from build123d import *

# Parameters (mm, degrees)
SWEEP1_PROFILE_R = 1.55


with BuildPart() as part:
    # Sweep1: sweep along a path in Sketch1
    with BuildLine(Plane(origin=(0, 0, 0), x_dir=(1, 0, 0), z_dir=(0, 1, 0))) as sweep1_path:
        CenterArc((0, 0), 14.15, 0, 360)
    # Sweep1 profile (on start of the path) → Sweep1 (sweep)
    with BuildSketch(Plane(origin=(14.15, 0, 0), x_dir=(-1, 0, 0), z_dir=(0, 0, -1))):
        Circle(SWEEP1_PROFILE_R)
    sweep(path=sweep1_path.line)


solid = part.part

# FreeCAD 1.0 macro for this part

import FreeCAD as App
import Part
import Sketcher
Q = App.Units.Quantity

doc = App.newDocument("Part")
body = doc.addObject("PartDesign::Body", "Body")

sketch1 = doc.addObject("Sketcher::SketchObject", "Sketch")
body.addObject(sketch1)
sketch1.AttachmentSupport = (doc.XY_Plane, [""])
sketch1.MapMode = "FlatFace"
sketch1.addGeometry(Part.Circle(App.Vector(14.2, 0, 0), App.Vector(0, 0, 1), 1.6), False)
sketch1.addConstraint([
    Sketcher.Constraint("PointOnObject", 0, 3, -1),
    Sketcher.Constraint("Diameter", 0, Q("3.1 mm")),
    Sketcher.Constraint("DistanceX", -1, 1, 0, 3, Q("14.15 mm")),
])

sketch2 = doc.addObject("Sketcher::SketchObject", "Sketch001")
body.addObject(sketch2)
sketch2.AttachmentSupport = (doc.XZ_Plane, [""])
sketch2.MapMode = "FlatFace"
sketch2.addGeometry(Part.Circle(App.Vector(0, 0, 0), App.Vector(0, 0, 1), 14), False)
sketch2.addConstraint([
    Sketcher.Constraint("Coincident", 0, 3, -1, 1),
    Sketcher.Constraint("Diameter", 0, Q("28.3 mm")),
])
doc.recompute()

additivepipe = doc.addObject("PartDesign::AdditivePipe", "AdditivePipe")
body.addObject(additivepipe)
additivepipe.Profile = sketch1
additivepipe.Spine = (sketch2, ["Edge1"])

doc.recompute()
